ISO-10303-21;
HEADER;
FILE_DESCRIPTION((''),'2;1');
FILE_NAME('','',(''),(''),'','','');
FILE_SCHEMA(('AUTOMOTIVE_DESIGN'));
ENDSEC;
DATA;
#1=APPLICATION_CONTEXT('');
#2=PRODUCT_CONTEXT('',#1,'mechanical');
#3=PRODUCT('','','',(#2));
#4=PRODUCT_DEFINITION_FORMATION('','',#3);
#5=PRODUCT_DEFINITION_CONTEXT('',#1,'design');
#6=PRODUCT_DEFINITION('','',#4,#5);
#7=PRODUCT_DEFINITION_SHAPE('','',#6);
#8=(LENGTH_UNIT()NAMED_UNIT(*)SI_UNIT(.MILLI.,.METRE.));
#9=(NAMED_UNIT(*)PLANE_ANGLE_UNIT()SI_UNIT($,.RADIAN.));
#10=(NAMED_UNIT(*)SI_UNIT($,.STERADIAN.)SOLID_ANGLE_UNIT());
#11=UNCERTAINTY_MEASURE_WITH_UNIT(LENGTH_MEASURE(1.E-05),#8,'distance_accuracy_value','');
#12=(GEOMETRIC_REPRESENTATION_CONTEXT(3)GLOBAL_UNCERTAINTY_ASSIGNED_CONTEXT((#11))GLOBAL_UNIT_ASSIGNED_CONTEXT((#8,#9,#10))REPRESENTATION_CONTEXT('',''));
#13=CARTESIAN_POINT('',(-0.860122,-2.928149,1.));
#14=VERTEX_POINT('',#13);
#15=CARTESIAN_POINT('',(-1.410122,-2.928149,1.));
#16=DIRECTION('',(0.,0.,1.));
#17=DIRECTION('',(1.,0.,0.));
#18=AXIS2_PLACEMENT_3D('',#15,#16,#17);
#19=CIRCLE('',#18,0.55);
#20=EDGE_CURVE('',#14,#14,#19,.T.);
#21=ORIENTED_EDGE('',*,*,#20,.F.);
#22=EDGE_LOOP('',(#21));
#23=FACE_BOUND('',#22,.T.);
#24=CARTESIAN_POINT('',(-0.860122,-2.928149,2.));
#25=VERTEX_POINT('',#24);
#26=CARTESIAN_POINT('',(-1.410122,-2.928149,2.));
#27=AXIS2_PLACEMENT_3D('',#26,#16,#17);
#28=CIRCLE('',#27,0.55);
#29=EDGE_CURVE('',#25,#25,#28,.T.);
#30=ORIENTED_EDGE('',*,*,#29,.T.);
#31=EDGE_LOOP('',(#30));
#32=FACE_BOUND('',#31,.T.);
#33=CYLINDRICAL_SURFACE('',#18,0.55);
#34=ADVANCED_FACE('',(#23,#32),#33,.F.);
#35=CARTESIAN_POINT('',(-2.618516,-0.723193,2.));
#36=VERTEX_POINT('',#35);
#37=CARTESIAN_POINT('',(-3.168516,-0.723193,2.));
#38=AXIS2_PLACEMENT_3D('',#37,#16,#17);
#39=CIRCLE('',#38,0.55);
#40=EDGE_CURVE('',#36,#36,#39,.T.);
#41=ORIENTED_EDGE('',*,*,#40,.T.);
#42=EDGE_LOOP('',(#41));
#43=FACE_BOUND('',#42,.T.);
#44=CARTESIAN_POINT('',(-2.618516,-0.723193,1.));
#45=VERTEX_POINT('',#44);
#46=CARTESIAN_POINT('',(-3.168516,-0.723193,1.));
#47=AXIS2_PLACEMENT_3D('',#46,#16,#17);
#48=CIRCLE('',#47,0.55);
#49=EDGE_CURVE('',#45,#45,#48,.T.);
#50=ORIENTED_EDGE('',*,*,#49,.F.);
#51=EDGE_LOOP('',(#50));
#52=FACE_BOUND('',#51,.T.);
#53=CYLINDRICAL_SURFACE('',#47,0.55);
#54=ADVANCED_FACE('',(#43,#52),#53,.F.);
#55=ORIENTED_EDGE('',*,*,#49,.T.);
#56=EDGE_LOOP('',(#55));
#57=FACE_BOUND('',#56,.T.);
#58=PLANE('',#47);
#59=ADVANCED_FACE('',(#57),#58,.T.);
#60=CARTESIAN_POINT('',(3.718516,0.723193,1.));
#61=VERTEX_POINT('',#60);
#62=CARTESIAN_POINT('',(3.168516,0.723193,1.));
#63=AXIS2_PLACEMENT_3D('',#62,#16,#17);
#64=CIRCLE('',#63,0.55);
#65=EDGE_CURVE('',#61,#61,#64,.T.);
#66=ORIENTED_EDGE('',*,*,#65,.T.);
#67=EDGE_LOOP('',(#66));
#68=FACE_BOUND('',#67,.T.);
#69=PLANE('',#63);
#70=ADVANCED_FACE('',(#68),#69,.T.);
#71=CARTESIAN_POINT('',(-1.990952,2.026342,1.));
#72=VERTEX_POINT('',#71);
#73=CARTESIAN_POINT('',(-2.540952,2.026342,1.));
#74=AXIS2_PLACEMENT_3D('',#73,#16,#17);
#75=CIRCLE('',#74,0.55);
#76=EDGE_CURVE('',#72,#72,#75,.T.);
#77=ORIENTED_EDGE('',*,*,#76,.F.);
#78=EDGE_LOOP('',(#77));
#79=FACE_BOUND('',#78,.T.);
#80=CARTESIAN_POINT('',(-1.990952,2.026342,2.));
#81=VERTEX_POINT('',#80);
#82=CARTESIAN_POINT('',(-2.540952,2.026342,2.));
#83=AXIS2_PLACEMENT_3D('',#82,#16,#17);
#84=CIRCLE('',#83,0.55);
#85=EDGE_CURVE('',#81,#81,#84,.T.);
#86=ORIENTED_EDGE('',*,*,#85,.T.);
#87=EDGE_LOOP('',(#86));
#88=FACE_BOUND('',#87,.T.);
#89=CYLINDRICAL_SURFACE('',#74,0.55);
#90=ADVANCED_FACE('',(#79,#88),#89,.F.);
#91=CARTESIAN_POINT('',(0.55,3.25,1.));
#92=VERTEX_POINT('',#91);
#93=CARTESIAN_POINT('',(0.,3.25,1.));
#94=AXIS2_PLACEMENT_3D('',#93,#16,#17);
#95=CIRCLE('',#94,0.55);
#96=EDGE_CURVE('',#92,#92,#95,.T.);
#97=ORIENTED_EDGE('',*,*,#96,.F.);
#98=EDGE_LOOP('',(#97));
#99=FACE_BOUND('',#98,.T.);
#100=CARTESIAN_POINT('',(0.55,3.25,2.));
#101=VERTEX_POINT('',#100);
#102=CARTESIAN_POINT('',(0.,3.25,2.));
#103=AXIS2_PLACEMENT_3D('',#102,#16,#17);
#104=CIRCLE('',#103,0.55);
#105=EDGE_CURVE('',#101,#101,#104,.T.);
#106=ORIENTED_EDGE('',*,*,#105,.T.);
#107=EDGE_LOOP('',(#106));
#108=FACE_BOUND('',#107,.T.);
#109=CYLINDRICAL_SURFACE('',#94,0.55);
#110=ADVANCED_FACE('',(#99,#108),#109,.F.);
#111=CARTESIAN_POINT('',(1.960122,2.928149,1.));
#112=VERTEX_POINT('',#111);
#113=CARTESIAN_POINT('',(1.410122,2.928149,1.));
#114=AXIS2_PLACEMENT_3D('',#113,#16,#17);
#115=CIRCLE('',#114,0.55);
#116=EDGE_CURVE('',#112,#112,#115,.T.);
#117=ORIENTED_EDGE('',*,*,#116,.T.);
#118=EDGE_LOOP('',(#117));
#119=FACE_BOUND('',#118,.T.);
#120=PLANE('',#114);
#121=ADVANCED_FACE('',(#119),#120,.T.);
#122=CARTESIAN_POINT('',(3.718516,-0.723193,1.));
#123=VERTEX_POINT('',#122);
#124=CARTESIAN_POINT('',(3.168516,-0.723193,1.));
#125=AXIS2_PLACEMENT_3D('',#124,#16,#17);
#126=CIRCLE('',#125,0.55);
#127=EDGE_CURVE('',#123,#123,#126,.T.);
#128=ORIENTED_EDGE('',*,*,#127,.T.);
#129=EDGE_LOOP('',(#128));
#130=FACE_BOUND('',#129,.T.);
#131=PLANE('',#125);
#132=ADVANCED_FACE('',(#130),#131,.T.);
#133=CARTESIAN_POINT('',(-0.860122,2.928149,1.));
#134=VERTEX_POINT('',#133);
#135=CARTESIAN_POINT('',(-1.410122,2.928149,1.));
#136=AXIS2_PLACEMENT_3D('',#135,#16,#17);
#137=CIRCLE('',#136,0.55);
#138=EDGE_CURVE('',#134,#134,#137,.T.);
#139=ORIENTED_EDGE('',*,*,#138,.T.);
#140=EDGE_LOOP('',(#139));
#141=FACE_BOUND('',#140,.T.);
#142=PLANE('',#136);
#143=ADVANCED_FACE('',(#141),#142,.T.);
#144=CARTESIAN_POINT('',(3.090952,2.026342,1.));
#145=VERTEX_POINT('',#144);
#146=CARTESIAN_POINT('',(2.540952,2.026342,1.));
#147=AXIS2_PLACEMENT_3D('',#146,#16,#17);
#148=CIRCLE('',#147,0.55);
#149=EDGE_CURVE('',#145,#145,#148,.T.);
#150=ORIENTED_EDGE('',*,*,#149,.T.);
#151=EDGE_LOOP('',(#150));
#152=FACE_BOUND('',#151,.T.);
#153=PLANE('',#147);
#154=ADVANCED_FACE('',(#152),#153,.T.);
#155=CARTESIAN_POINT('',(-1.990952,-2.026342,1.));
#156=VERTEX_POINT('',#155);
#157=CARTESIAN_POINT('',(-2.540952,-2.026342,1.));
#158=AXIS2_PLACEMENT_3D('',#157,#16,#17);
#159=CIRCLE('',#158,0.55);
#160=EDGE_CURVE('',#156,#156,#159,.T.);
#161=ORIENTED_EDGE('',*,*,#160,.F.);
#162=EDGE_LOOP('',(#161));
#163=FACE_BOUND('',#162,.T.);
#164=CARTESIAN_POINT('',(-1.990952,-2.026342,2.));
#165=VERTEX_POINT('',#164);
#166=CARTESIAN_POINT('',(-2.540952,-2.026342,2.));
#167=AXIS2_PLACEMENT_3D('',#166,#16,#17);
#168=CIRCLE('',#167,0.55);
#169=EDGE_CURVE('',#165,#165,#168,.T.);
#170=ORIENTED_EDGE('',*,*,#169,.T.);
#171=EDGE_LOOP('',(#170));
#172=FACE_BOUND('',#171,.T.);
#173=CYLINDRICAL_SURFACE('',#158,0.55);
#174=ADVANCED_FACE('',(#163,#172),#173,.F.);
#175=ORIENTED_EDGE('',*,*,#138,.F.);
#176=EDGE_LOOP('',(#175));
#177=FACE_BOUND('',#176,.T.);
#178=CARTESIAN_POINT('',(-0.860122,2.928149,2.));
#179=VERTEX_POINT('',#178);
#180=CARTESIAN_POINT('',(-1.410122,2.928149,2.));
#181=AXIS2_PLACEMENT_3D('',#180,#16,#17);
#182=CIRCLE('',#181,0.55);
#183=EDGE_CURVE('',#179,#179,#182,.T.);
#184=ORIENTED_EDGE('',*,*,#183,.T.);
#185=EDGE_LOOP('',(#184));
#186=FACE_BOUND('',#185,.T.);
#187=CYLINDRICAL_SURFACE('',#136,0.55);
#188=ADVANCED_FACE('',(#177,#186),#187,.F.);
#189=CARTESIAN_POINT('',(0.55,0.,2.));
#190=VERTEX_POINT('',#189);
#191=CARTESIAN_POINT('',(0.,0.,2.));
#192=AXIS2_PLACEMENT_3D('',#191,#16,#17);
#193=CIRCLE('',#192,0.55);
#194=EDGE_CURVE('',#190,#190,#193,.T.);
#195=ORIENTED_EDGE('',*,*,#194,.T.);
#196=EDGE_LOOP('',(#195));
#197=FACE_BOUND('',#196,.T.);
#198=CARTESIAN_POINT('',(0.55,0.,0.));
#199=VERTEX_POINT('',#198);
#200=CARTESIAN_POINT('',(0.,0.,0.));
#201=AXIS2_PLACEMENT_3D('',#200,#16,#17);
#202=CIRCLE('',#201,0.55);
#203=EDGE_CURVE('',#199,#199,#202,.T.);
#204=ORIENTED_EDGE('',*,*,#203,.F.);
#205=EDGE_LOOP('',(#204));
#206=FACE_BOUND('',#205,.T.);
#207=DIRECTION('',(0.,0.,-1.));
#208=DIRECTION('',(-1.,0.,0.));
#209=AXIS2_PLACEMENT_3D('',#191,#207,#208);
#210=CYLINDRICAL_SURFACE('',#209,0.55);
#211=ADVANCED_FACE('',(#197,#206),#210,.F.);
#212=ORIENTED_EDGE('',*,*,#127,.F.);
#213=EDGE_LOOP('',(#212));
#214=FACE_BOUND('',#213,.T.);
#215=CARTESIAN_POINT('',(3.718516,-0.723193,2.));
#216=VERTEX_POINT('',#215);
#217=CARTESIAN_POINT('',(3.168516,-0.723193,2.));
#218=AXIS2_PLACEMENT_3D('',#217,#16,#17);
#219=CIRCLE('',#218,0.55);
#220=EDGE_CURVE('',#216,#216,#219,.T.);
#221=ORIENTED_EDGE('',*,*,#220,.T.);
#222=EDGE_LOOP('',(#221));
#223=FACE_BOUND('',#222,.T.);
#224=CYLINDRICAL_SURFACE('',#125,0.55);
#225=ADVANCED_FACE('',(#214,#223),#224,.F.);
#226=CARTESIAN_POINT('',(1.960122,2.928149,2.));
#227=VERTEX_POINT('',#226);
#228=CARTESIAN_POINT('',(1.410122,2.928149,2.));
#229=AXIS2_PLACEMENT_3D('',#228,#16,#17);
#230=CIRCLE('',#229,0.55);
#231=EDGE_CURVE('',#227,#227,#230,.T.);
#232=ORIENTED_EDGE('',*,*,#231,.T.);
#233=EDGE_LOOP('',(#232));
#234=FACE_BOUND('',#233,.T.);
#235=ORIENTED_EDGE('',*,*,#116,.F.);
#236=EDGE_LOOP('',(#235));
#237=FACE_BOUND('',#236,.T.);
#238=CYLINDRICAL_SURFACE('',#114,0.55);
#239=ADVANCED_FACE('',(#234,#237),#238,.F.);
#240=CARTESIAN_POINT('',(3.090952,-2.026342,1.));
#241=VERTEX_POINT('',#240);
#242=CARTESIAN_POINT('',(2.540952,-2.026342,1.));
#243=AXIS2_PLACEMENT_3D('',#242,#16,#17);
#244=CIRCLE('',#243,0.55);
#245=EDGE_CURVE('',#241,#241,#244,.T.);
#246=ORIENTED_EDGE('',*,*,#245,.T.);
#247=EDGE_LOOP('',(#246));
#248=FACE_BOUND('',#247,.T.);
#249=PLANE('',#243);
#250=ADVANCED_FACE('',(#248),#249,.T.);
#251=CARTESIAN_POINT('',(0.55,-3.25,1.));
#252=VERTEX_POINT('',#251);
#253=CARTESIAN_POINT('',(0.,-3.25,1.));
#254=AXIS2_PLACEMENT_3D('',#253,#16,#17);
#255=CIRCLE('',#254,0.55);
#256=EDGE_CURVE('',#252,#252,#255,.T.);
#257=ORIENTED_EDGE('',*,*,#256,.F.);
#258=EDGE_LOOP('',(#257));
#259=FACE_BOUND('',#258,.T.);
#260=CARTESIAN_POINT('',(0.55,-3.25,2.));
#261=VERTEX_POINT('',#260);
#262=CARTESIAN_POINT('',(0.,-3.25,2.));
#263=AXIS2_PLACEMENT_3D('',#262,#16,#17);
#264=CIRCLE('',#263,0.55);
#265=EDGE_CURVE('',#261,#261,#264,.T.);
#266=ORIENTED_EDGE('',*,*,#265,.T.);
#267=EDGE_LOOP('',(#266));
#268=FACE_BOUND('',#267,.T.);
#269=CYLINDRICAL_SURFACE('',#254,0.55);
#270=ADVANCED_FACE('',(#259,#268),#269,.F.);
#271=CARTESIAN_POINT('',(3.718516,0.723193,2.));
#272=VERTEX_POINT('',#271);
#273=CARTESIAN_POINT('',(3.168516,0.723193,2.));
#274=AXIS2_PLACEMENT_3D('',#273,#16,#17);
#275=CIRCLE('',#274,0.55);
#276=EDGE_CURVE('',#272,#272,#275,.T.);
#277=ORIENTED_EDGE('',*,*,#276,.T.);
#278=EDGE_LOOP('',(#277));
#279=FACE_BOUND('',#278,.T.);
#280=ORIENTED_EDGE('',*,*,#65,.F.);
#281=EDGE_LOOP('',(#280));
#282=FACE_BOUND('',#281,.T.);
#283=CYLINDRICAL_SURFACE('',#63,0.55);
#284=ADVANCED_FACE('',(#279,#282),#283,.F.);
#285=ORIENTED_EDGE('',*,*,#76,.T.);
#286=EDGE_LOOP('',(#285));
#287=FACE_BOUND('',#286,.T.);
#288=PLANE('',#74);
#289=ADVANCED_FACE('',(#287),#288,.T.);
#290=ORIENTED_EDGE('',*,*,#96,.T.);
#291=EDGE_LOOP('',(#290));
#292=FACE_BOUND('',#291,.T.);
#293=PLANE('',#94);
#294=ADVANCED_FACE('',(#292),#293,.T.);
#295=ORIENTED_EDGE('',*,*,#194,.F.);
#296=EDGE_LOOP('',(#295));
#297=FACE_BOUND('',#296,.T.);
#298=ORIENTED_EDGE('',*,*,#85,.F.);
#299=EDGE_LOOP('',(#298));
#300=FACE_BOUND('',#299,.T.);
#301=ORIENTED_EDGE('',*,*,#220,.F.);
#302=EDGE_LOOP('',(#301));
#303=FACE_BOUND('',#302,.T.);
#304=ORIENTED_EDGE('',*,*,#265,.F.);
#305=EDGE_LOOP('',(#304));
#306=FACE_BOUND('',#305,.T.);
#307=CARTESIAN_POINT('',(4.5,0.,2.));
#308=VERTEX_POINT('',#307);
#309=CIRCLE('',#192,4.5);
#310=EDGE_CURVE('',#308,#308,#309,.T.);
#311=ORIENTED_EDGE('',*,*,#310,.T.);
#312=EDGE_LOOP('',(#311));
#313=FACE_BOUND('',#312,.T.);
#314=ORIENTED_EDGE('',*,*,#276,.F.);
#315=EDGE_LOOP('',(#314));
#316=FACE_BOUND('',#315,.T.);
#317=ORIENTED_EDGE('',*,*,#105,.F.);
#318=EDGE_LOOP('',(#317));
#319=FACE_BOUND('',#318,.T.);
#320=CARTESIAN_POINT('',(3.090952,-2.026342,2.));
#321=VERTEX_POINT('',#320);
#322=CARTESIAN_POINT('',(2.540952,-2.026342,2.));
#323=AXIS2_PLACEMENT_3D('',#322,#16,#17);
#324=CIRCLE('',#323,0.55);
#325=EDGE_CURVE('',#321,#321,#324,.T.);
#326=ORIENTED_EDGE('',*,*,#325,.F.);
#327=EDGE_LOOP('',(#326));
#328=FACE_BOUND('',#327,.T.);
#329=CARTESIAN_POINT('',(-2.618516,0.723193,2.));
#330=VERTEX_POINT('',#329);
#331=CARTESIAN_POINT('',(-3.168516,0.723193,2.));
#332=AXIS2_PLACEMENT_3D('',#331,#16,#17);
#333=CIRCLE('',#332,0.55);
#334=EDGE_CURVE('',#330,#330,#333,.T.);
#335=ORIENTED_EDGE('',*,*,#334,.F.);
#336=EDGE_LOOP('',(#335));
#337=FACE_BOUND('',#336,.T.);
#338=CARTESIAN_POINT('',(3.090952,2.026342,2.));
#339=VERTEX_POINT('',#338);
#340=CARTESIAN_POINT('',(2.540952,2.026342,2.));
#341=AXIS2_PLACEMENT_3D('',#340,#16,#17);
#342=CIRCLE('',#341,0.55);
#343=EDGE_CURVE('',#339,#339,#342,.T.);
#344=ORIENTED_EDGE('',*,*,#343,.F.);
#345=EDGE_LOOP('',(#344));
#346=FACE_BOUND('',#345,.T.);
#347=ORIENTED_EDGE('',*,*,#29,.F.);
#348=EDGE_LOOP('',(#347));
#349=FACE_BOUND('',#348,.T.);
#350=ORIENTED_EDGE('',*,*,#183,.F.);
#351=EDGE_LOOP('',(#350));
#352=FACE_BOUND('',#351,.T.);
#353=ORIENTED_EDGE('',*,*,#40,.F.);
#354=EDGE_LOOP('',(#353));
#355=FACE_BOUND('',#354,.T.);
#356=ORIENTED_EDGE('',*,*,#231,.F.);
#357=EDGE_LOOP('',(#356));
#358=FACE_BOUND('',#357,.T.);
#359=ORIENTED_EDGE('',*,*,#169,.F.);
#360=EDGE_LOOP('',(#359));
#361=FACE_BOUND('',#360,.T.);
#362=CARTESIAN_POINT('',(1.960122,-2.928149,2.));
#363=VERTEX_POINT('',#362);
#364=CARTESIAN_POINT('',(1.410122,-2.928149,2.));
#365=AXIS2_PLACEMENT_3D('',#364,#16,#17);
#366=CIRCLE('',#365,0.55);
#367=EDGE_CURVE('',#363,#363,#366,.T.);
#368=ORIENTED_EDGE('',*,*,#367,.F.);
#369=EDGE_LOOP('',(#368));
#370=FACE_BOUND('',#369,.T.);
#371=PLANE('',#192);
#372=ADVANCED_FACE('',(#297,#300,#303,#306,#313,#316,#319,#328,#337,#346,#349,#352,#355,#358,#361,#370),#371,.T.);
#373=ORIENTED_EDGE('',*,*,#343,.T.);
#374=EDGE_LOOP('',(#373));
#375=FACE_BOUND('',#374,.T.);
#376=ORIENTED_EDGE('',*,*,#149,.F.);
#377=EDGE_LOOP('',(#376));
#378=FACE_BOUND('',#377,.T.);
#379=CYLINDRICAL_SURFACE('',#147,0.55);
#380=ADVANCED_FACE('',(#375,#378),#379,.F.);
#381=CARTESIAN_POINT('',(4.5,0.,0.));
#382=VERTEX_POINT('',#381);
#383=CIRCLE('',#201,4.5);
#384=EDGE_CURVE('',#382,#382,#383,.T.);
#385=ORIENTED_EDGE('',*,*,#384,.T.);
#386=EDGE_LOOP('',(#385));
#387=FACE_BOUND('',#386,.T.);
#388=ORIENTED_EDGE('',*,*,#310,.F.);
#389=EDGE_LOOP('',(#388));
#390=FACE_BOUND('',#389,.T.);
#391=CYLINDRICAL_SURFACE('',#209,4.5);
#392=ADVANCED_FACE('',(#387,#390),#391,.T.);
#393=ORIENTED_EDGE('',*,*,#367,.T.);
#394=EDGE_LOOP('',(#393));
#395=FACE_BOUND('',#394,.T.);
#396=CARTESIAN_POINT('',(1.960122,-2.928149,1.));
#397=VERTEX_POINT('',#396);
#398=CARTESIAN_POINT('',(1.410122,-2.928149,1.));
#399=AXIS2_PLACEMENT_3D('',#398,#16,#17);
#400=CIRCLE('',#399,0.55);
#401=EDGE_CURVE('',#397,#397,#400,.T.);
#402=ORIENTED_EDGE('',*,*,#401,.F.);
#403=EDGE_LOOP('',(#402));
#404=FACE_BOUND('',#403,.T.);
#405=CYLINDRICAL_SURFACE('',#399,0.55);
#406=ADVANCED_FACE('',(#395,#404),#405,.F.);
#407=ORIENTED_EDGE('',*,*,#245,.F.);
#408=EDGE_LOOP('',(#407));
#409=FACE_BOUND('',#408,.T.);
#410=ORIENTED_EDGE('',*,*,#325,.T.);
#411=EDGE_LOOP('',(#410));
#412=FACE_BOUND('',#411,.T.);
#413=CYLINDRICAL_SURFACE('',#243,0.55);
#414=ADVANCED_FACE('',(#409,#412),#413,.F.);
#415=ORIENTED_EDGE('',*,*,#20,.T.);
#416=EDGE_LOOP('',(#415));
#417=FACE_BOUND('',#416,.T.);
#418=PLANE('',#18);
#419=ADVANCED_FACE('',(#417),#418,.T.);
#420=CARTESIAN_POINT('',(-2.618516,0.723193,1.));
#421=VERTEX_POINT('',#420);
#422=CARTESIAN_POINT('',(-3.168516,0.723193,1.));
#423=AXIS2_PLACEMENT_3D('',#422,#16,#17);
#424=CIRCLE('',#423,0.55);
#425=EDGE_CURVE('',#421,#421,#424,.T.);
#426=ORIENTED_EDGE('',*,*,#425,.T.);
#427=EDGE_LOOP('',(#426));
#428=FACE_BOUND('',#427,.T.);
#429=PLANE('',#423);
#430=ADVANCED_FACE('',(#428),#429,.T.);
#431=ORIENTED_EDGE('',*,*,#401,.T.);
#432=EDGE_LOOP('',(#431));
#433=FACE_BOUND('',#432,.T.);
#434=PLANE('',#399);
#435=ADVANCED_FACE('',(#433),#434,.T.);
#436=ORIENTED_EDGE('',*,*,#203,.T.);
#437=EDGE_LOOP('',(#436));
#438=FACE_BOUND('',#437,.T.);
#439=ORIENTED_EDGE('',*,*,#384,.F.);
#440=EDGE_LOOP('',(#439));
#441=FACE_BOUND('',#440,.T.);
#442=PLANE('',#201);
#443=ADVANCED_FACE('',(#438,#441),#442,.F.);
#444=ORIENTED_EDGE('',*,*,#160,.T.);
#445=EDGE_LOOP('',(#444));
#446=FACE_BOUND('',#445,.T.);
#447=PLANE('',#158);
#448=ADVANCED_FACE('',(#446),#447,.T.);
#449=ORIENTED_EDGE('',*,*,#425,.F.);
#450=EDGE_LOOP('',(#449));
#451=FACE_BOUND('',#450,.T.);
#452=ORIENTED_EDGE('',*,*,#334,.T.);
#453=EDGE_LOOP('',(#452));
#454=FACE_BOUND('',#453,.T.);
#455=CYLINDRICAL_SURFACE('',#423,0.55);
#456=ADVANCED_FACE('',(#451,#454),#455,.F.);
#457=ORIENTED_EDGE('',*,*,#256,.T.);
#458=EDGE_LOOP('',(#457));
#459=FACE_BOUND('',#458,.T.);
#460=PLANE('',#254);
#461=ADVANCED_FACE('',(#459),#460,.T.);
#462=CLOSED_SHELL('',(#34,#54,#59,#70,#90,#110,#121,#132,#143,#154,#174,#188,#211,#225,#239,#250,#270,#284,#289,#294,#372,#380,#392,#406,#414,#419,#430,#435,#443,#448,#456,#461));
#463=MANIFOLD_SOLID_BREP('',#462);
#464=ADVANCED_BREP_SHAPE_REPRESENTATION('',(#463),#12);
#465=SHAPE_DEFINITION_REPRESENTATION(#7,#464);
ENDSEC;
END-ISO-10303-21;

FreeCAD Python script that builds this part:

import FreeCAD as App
import Part
import Sketcher
from FreeCAD import Vector
Q = App.Units.Quantity

doc = App.newDocument("Part")
params = doc.addObject("Spreadsheet::Sheet", "Params")
for row, (alias, value) in enumerate([
    ("sketch1_diameter", "9 mm"),
    ("sketch1_diameter2", "1.1 mm"),
    ("pad1_length", "2 mm"),
    ("sketch2_diameter", "1.1 mm"),
    ("pocket1_length", "1 mm"),
], start=1):
    params.set(f"A{row}", alias)
    params.set(f"B{row}", "=" + value)
    params.setAlias(f"B{row}", alias)

body = doc.addObject("PartDesign::Body", "Body")

# Sketch on XY plane
sketch1 = body.newObject("Sketcher::SketchObject", "Sketch")
sketch1.AttachmentSupport = (doc.getObject("XY_Plane"), [""])
sketch1.MapMode = "FlatFace"
sketch1.addGeometry([
    Part.Circle(Vector(0, 0, 0), Vector(0, 0, 1), 4.5),
    Part.Circle(Vector(0, 0, 0), Vector(0, 0, 1), 0.6),
], False)
sketch1.addConstraint([
    Sketcher.Constraint("Coincident", 0, 3, -1, 1),
    Sketcher.Constraint("Coincident", 1, 3, -1, 1),
    Sketcher.Constraint("Diameter", 0, Q("9 mm")),
    Sketcher.Constraint("Diameter", 1, Q("1.1 mm")),
])
sketch1.setExpression("Constraints[2]", "Params.sketch1_diameter")
sketch1.setExpression("Constraints[3]", "Params.sketch1_diameter2")
pad1 = body.newObject("PartDesign::Pad", "Pad")
pad1.Profile = sketch1
pad1.setExpression("Length", "Params.pad1_length")

# Sketch on XY plane
sketch2 = body.newObject("Sketcher::SketchObject", "Sketch001")
sketch2.AttachmentSupport = (doc.getObject("XY_Plane"), [""])
sketch2.MapMode = "FlatFace"
sketch2.AttachmentOffset = App.Placement(Vector(0, 0, 2), App.Rotation())
sketch2.addGeometry([
    Part.Circle(Vector(0, 3.2, 0), Vector(0, 0, 1), 0.6),  # 0
    Part.Circle(Vector(1.4, 2.9, 0), Vector(0, 0, 1), 0.6),  # 1
    Part.Circle(Vector(2.5, 2, 0), Vector(0, 0, 1), 0.6),  # 2
    Part.Circle(Vector(3.2, 0.7, 0), Vector(0, 0, 1), 0.6),  # 3
    Part.Circle(Vector(3.2, -0.7, 0), Vector(0, 0, 1), 0.6),  # 4
    Part.Circle(Vector(2.5, -2, 0), Vector(0, 0, 1), 0.6),  # 5
    Part.Circle(Vector(1.4, -2.9, 0), Vector(0, 0, 1), 0.6),  # 6
    Part.Circle(Vector(0, -3.2, 0), Vector(0, 0, 1), 0.6),  # 7
    Part.Circle(Vector(-1.4, -2.9, 0), Vector(0, 0, 1), 0.6),  # 8
    Part.Circle(Vector(-2.5, -2, 0), Vector(0, 0, 1), 0.6),  # 9
    Part.Circle(Vector(-3.2, -0.7, 0), Vector(0, 0, 1), 0.6),  # 10
    Part.Circle(Vector(-3.2, 0.7, 0), Vector(0, 0, 1), 0.6),  # 11
    Part.Circle(Vector(-2.5, 2, 0), Vector(0, 0, 1), 0.6),  # 12
    Part.Circle(Vector(-1.4, 2.9, 0), Vector(0, 0, 1), 0.6),  # 13
], False)
sketch2.addConstraint([
    Sketcher.Constraint("Equal", 0, 1),
    Sketcher.Constraint("Equal", 1, 2),
    Sketcher.Constraint("Equal", 2, 3),
    Sketcher.Constraint("Equal", 3, 4),
    Sketcher.Constraint("Equal", 4, 5),
    Sketcher.Constraint("Equal", 5, 6),
    Sketcher.Constraint("Equal", 6, 7),
    Sketcher.Constraint("Equal", 7, 8),
    Sketcher.Constraint("Equal", 8, 9),
    Sketcher.Constraint("Equal", 9, 10),
    Sketcher.Constraint("Equal", 10, 11),
    Sketcher.Constraint("Equal", 11, 12),
    Sketcher.Constraint("Equal", 12, 13),
    Sketcher.Constraint("Symmetric", 0, 3, 7, 3, -1, 1),
    Sketcher.Constraint("Symmetric", 1, 3, 8, 3, -1, 1),
    Sketcher.Constraint("Symmetric", 2, 3, 9, 3, -1, 1),
    Sketcher.Constraint("Symmetric", 3, 3, 10, 3, -1, 1),
    Sketcher.Constraint("Symmetric", 4, 3, 11, 3, -1, 1),
    Sketcher.Constraint("Symmetric", 5, 3, 12, 3, -1, 1),
    Sketcher.Constraint("Symmetric", 6, 3, 13, 3, -1, 1),
    Sketcher.Constraint("Symmetric", 6, 3, 8, 3, -2),
    Sketcher.Constraint("Symmetric", 5, 3, 9, 3, -2),
    Sketcher.Constraint("Symmetric", 4, 3, 10, 3, -2),
    Sketcher.Constraint("PointOnObject", 0, 3, -2),
    Sketcher.Constraint("Diameter", 0, Q("1.1 mm")),
    Sketcher.Constraint("DistanceY", -1, 1, 0, 3, Q("3.25 mm")),
    Sketcher.Constraint("DistanceY", -1, 1, 1, 3, Q("2.928149 mm")),
    Sketcher.Constraint("DistanceY", -1, 1, 2, 3, Q("2.026342 mm")),
    Sketcher.Constraint("DistanceX", 1, 3, 2, 3, Q("1.13083 mm")),
    Sketcher.Constraint("DistanceY", 3, 3, 2, 3, Q("1.303149 mm")),
    Sketcher.Constraint("DistanceX", -1, 1, 1, 3, Q("1.410122 mm")),
    Sketcher.Constraint("DistanceX", -1, 1, 3, 3, Q("3.168516 mm")),
])
sketch2.setExpression("Constraints[24]", "Params.sketch2_diameter")
pocket1 = body.newObject("PartDesign::Pocket", "Pocket")
pocket1.Profile = sketch2
pocket1.setExpression("Length", "Params.pocket1_length")

doc.recompute()
